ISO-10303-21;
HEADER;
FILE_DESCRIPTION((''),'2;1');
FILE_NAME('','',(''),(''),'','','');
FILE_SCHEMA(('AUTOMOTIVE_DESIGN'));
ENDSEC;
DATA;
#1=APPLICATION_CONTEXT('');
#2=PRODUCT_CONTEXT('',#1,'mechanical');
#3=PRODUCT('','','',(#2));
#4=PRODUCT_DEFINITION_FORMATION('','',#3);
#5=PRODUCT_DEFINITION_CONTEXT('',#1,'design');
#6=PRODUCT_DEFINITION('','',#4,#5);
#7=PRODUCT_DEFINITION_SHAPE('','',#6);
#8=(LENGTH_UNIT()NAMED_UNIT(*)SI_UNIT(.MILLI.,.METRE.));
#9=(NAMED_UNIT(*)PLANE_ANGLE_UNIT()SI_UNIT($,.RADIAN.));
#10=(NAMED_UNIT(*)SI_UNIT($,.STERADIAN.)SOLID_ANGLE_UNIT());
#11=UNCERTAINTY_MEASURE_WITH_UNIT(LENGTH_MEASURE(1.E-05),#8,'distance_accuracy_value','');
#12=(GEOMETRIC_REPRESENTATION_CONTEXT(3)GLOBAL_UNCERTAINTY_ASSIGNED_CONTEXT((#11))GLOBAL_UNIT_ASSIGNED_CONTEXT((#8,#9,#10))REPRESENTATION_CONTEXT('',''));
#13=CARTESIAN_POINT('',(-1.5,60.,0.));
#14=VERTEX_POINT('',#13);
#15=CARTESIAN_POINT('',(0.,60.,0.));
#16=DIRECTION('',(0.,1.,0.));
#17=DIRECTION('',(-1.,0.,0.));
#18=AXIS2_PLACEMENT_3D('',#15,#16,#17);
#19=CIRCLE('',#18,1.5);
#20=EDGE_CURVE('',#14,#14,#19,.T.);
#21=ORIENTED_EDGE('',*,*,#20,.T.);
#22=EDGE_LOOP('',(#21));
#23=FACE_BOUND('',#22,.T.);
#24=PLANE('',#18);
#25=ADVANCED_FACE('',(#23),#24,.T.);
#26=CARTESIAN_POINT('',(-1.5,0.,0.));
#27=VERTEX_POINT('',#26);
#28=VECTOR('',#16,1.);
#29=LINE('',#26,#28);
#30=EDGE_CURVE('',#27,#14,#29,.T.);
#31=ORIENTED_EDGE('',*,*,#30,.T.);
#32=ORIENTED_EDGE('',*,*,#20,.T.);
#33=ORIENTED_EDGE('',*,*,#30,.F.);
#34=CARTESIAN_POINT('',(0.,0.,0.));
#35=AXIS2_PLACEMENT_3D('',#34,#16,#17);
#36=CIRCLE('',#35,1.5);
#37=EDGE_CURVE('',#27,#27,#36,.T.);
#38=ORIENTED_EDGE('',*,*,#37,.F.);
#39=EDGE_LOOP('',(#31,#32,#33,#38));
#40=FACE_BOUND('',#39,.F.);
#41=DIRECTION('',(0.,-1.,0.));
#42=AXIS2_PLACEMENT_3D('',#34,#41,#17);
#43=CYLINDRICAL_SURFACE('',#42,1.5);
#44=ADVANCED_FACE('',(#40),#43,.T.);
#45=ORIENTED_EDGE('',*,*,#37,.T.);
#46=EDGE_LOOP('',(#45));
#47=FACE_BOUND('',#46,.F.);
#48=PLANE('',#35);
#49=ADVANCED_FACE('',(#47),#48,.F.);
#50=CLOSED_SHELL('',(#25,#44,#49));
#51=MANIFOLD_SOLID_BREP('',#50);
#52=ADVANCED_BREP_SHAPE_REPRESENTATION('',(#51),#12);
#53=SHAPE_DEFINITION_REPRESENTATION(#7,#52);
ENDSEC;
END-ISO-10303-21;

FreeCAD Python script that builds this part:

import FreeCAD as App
import Part
import Sketcher

V = App.Vector

doc = App.newDocument("Part")
body = doc.addObject("PartDesign::Body", "Body")

# Sketch on XZ plane
sketch1 = body.newObject("Sketcher::SketchObject", "Sketch")
sketch1.AttachmentSupport = (doc.getObject("XZ_Plane"), [""])
sketch1.MapMode = "FlatFace"
sketch1.addGeometry(Part.Circle(V(0, 0, 0), V(0, 0, 1), 1.5), False)
sketch1.addConstraint(Sketcher.Constraint("Coincident", 0, 3, -1, 1))
sketch1.addConstraint(Sketcher.Constraint("Diameter", 0, 3.0))
pad1 = body.newObject("PartDesign::Pad", "Pad")
pad1.Profile = sketch1
pad1.Length = 60
pad1.Reversed = True

doc.recompute()
